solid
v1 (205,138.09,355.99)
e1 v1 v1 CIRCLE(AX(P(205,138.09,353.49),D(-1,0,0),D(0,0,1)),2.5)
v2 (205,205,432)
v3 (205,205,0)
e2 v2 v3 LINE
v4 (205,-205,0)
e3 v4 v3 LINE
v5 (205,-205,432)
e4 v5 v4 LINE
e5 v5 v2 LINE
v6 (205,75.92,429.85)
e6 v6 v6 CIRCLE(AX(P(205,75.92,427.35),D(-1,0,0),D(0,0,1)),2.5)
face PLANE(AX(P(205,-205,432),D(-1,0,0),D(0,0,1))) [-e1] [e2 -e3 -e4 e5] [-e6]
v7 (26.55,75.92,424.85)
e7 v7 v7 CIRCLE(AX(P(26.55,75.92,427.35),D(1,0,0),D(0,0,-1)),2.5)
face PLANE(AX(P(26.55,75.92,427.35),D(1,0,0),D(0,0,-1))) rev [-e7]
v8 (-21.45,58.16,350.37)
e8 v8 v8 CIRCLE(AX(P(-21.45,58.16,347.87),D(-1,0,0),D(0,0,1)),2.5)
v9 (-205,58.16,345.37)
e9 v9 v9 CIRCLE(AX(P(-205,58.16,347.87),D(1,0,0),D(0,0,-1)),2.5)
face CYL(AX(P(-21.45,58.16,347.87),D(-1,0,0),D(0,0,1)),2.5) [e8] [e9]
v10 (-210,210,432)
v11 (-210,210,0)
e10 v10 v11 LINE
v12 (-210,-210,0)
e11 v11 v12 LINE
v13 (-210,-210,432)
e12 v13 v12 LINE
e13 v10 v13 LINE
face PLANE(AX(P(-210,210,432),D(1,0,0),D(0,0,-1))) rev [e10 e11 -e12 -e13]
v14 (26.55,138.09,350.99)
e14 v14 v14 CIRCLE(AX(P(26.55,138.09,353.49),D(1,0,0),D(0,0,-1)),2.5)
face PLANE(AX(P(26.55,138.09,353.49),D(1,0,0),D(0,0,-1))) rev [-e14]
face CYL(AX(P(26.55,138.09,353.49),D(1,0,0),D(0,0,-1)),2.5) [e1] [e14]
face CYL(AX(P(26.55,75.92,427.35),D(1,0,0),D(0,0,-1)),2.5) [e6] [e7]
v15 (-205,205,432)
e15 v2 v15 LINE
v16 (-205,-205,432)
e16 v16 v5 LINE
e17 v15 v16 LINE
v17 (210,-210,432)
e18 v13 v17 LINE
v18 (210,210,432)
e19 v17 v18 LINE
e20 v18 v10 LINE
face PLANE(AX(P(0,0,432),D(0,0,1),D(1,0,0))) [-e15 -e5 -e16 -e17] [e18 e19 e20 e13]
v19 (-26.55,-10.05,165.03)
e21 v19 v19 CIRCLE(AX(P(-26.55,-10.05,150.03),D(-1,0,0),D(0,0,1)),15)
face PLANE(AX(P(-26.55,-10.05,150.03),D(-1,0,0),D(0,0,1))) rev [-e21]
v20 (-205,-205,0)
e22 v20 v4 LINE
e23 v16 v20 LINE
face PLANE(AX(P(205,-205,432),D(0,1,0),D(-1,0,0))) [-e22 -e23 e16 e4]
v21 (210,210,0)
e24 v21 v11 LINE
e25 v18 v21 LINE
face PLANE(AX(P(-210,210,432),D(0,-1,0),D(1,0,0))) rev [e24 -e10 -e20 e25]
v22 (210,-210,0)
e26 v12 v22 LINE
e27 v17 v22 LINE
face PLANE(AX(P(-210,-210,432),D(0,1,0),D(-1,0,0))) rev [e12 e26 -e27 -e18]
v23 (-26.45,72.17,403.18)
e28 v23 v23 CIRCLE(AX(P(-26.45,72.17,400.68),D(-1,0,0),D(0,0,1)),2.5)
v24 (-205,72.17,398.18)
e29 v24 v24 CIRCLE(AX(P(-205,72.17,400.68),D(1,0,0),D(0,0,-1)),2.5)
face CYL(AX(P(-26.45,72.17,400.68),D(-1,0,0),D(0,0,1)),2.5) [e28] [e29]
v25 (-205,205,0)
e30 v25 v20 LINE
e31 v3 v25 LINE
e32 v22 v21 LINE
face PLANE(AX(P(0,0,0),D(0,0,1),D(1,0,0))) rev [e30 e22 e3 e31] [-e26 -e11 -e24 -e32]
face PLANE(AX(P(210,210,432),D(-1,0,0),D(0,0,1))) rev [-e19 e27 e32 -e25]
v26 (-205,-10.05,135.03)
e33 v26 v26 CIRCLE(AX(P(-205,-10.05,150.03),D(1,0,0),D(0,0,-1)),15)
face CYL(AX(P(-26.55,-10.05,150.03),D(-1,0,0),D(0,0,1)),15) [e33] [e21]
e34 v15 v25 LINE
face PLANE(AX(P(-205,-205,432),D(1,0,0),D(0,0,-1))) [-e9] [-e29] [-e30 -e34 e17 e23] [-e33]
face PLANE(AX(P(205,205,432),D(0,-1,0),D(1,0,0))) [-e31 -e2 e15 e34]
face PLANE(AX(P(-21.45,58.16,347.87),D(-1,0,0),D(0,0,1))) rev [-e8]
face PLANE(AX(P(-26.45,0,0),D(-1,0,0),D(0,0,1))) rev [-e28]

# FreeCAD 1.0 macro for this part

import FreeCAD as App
import Part
import Sketcher

V = App.Vector
Q = App.Units.Quantity

doc = App.newDocument("Part")
body = doc.addObject("PartDesign::Body", "Body")

# Sketch on XY plane
sketch1 = body.newObject("Sketcher::SketchObject", "Sketch")
sketch1.AttachmentSupport = (doc.getObject("XY_Plane"), [""])
sketch1.MapMode = "FlatFace"
sketch1.addGeometry(Part.LineSegment(V(-210, 210, 0), V(-210, -210, 0)), False)
sketch1.addGeometry(Part.LineSegment(V(-210, -210, 0), V(210, -210, 0)), False)
sketch1.addGeometry(Part.LineSegment(V(210, -210, 0), V(210, 210, 0)), False)
sketch1.addGeometry(Part.LineSegment(V(210, 210, 0), V(-210, 210, 0)), False)
sketch1.addGeometry(Part.LineSegment(V(205, -205, 0), V(-205, -205, 0)), False)
sketch1.addGeometry(Part.LineSegment(V(-205, -205, 0), V(-205, 205, 0)), False)
sketch1.addGeometry(Part.LineSegment(V(-205, 205, 0), V(205, 205, 0)), False)
sketch1.addGeometry(Part.LineSegment(V(205, 205, 0), V(205, -205, 0)), False)
sketch1.addConstraint(Sketcher.Constraint("Coincident", 0, 2, 1, 1))
sketch1.addConstraint(Sketcher.Constraint("Coincident", 1, 2, 2, 1))
sketch1.addConstraint(Sketcher.Constraint("Coincident", 2, 2, 3, 1))
sketch1.addConstraint(Sketcher.Constraint("Coincident", 3, 2, 0, 1))
sketch1.addConstraint(Sketcher.Constraint("Coincident", 4, 2, 5, 1))
sketch1.addConstraint(Sketcher.Constraint("Coincident", 5, 2, 6, 1))
sketch1.addConstraint(Sketcher.Constraint("Coincident", 6, 2, 7, 1))
sketch1.addConstraint(Sketcher.Constraint("Coincident", 7, 2, 4, 1))
sketch1.addConstraint(Sketcher.Constraint("Vertical", 0))
sketch1.addConstraint(Sketcher.Constraint("Horizontal", 1))
sketch1.addConstraint(Sketcher.Constraint("Vertical", 2))
sketch1.addConstraint(Sketcher.Constraint("Horizontal", 3))
sketch1.addConstraint(Sketcher.Constraint("Horizontal", 4))
sketch1.addConstraint(Sketcher.Constraint("Vertical", 5))
sketch1.addConstraint(Sketcher.Constraint("Horizontal", 6))
sketch1.addConstraint(Sketcher.Constraint("Vertical", 7))
sketch1.addConstraint(Sketcher.Constraint("Symmetric", 0, 2, 2, 2, -1, 1))
sketch1.addConstraint(Sketcher.Constraint("Symmetric", 4, 2, 6, 2, -1, 1))
sketch1.addConstraint(Sketcher.Constraint("Equal", 3, 0))
sketch1.addConstraint(Sketcher.Constraint("Equal", 6, 5))
sketch1.addConstraint(Sketcher.Constraint("DistanceX", 1, 1, 1, 2, Q("420 mm")))
sketch1.addConstraint(Sketcher.Constraint("DistanceX", 4, 2, 4, 1, Q("410 mm")))
pad1 = body.newObject("PartDesign::Pad", "Pad")
pad1.Profile = sketch1
pad1.Length = 432

# Sketch on YZ plane
sketch2 = body.newObject("Sketcher::SketchObject", "Sketch001")
sketch2.AttachmentSupport = (doc.getObject("YZ_Plane"), [""])
sketch2.MapMode = "FlatFace"
sketch2.AttachmentOffset = App.Placement(V(0, 0, -210), App.Rotation())
sketch2.addGeometry(Part.Circle(V(72.2, 400.7, 0), V(0, 0, 1), 2.5), False)
sketch2.addConstraint(Sketcher.Constraint("Diameter", 0, Q("5 mm")))
sketch2.addConstraint(Sketcher.Constraint("DistanceX", -1, 1, 0, 3, Q("72.17 mm")))
sketch2.addConstraint(Sketcher.Constraint("DistanceY", -1, 1, 0, 3, Q("400.68 mm")))
pad2 = body.newObject("PartDesign::Pad", "Pad001")
pad2.Profile = sketch2
pad2.Length = 183.55

# Sketch on YZ plane
sketch3 = body.newObject("Sketcher::SketchObject", "Sketch002")
sketch3.AttachmentSupport = (doc.getObject("YZ_Plane"), [""])
sketch3.MapMode = "FlatFace"
sketch3.AttachmentOffset = App.Placement(V(0, 0, -210), App.Rotation())
sketch3.addGeometry(Part.Circle(V(58.2, 347.9, 0), V(0, 0, 1), 2.5), False)
sketch3.addConstraint(Sketcher.Constraint("Diameter", 0, Q("5 mm")))
sketch3.addConstraint(Sketcher.Constraint("DistanceX", -1, 1, 0, 3, Q("58.16 mm")))
sketch3.addConstraint(Sketcher.Constraint("DistanceY", -1, 1, 0, 3, Q("347.87 mm")))
pad3 = body.newObject("PartDesign::Pad", "Pad002")
pad3.Profile = sketch3
pad3.Length = 188.55

# Sketch on YZ plane
sketch4 = body.newObject("Sketcher::SketchObject", "Sketch003")
sketch4.AttachmentSupport = (doc.getObject("YZ_Plane"), [""])
sketch4.MapMode = "FlatFace"
sketch4.AttachmentOffset = App.Placement(V(0, 0, 210), App.Rotation())
sketch4.addGeometry(Part.Circle(V(138.1, 353.5, 0), V(0, 0, 1), 2.5), False)
sketch4.addGeometry(Part.Circle(V(75.9, 427.4, 0), V(0, 0, 1), 2.5), False)
sketch4.addConstraint(Sketcher.Constraint("Equal", 0, 1))
sketch4.addConstraint(Sketcher.Constraint("Diameter", 0, Q("5 mm")))
sketch4.addConstraint(Sketcher.Constraint("DistanceX", -1, 1, 0, 3, Q("138.09 mm")))
sketch4.addConstraint(Sketcher.Constraint("DistanceY", -1, 1, 0, 3, Q("353.49 mm")))
sketch4.addConstraint(Sketcher.Constraint("DistanceX", -1, 1, 1, 3, Q("75.92 mm")))
sketch4.addConstraint(Sketcher.Constraint("DistanceY", -1, 1, 1, 3, Q("427.35 mm")))
pad4 = body.newObject("PartDesign::Pad", "Pad003")
pad4.Profile = sketch4
pad4.Length = 183.45
pad4.Reversed = True

# Sketch on YZ plane
sketch5 = body.newObject("Sketcher::SketchObject", "Sketch004")
sketch5.AttachmentSupport = (doc.getObject("YZ_Plane"), [""])
sketch5.MapMode = "FlatFace"
sketch5.AttachmentOffset = App.Placement(V(0, 0, -210), App.Rotation())
sketch5.addGeometry(Part.Circle(V(-10, 150, 0), V(0, 0, 1), 15), False)
sketch5.addConstraint(Sketcher.Constraint("Diameter", 0, Q("30 mm")))
sketch5.addConstraint(Sketcher.Constraint("DistanceX", 0, 3, -1, 1, Q("10.05 mm")))
sketch5.addConstraint(Sketcher.Constraint("DistanceY", -1, 1, 0, 3, Q("150.03 mm")))
pad5 = body.newObject("PartDesign::Pad", "Pad004")
pad5.Profile = sketch5
pad5.Length = 183.45

doc.recompute()
